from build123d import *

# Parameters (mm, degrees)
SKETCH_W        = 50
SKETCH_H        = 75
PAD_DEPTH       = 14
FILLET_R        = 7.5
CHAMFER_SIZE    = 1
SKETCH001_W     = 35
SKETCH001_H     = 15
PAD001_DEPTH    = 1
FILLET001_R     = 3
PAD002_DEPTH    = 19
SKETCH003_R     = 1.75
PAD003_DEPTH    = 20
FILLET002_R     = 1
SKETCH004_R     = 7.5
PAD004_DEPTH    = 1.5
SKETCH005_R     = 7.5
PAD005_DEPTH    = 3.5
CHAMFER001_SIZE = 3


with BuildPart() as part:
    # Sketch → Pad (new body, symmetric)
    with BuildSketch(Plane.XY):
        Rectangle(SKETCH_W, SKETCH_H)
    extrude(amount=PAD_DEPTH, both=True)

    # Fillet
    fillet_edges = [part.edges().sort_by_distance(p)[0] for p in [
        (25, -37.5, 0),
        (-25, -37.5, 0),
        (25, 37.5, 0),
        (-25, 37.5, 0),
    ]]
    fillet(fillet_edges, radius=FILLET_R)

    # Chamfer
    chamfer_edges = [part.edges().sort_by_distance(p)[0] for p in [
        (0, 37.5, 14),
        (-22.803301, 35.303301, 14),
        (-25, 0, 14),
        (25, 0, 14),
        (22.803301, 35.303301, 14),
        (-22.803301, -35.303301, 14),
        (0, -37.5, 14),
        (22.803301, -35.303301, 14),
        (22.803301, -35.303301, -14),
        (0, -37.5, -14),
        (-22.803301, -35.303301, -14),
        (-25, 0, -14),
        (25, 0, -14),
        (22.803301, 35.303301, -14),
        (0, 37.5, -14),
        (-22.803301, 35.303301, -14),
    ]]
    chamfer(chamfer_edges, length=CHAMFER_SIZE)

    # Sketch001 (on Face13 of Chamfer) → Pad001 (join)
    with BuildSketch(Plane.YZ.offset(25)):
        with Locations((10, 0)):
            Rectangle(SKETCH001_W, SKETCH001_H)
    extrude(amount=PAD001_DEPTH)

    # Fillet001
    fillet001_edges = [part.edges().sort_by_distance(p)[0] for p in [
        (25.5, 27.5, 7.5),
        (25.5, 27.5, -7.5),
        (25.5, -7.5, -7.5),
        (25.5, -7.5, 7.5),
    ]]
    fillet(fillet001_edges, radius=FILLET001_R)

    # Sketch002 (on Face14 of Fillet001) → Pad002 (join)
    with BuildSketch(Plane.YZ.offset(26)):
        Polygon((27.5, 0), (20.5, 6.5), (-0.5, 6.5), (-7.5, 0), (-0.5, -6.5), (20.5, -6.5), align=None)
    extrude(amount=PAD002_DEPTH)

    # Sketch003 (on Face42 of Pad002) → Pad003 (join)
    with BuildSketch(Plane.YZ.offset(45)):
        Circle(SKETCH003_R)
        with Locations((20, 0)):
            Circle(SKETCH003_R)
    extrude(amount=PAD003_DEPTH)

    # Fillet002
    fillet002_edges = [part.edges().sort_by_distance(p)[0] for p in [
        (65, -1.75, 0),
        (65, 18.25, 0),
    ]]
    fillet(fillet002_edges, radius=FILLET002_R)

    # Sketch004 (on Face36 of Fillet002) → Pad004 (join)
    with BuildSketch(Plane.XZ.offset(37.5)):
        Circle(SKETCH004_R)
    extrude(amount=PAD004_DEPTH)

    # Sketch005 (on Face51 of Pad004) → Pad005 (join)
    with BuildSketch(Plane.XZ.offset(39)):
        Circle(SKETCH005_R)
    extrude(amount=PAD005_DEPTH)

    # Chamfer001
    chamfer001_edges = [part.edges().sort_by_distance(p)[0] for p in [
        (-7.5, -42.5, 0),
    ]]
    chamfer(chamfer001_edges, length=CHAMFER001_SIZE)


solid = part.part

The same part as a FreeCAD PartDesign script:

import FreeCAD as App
import Part
import Sketcher
from FreeCAD import Vector


def edges_at(feature, points):
    """Names of the edges that pass closest to the given points."""
    edges = feature.Shape.Edges
    near = lambda p: min(range(len(edges)), key=lambda i: edges[i].distToShape(Part.Vertex(*p))[0])
    return sorted({f"Edge{near(p) + 1}" for p in points})

doc = App.newDocument("Part")
params = doc.addObject("Spreadsheet::Sheet", "Params")
for row, (alias, value) in enumerate([
    ("sketch1_width", "50 mm"),
    ("sketch1_height", "75 mm"),
    ("pad1_length", "28 mm"),
    ("fillet_radius", "7.5 mm"),
    ("chamfer_size", "1 mm"),
    ("sketch2_width", "35 mm"),
    ("sketch2_height", "15 mm"),
    ("pad2_length", "1 mm"),
    ("fillet2_radius", "3 mm"),
    ("sketch3_width", "21 mm"),
    ("pad3_length", "19 mm"),
    ("sketch4_diameter", "3.5 mm"),
    ("pad4_length", "20 mm"),
    ("fillet3_radius", "1 mm"),
    ("sketch5_diameter", "15 mm"),
    ("pad5_length", "1.5 mm"),
    ("sketch6_diameter", "15 mm"),
    ("pad6_length", "3.5 mm"),
    ("chamfer2_size", "3 mm"),
], start=1):
    params.set(f"A{row}", alias)
    params.set(f"B{row}", "=" + value)
    params.setAlias(f"B{row}", alias)

body = doc.addObject("PartDesign::Body", "Body")

sketch1 = body.newObject("Sketcher::SketchObject", "Sketch")
sketch1.AttachmentSupport = (doc.getObject("XY_Plane"), [""])
sketch1.MapMode = "FlatFace"
sketch1.addGeometry([
    Part.LineSegment(Vector(-25, 38, 0), Vector(-25, -38, 0)),
    Part.LineSegment(Vector(-25, -38, 0), Vector(25, -38, 0)),
    Part.LineSegment(Vector(25, -38, 0), Vector(25, 38, 0)),
    Part.LineSegment(Vector(25, 38, 0), Vector(-25, 38, 0)),
], False)
sketch1.addConstraint([
    Sketcher.Constraint("Coincident", 0, 2, 1, 1),
    Sketcher.Constraint("Coincident", 1, 2, 2, 1),
    Sketcher.Constraint("Coincident", 2, 2, 3, 1),
    Sketcher.Constraint("Coincident", 3, 2, 0, 1),
    Sketcher.Constraint("Vertical", 0),
    Sketcher.Constraint("Horizontal", 1),
    Sketcher.Constraint("Vertical", 2),
    Sketcher.Constraint("Horizontal", 3),
    Sketcher.Constraint("Symmetric", 0, 2, 2, 2, -1, 1),
    Sketcher.Constraint("DistanceX", 1, 1, 1, 2, 50.0),
    Sketcher.Constraint("DistanceY", 0, 2, 0, 1, 75.0),
])
sketch1.setExpression("Constraints[9]", "Params.sketch1_width")
sketch1.setExpression("Constraints[10]", "Params.sketch1_height")
pad1 = body.newObject("PartDesign::Pad", "Pad")
pad1.Profile = sketch1
pad1.setExpression("Length", "Params.pad1_length")
pad1.Midplane = True
doc.recompute()

fillet = body.newObject("PartDesign::Fillet", "Fillet")
fillet.Base = (pad1, edges_at(pad1, [
    (25, -37.5, 0),
    (-25, -37.5, 0),
    (25, 37.5, 0),
    (-25, 37.5, 0),
]))
fillet.setExpression("Radius", "Params.fillet_radius")
doc.recompute()

chamfer = body.newObject("PartDesign::Chamfer", "Chamfer")
chamfer.Base = (fillet, edges_at(fillet, [
    (0, 37.5, 14),
    (-22.803, 35.303, 14),
    (-25, 0, 14),
    (25, 0, 14),
    (22.803, 35.303, 14),
    (-22.803, -35.303, 14),
    (0, -37.5, 14),
    (22.803, -35.303, 14),
    (22.803, -35.303, -14),
    (0, -37.5, -14),
    (-22.803, -35.303, -14),
    (-25, 0, -14),
    (25, 0, -14),
    (22.803, 35.303, -14),
    (0, 37.5, -14),
    (-22.803, 35.303, -14),
]))
chamfer.setExpression("Size", "Params.chamfer_size")

sketch2 = body.newObject("Sketcher::SketchObject", "Sketch001")
sketch2.AttachmentSupport = (doc.getObject("YZ_Plane"), [""])
sketch2.MapMode = "FlatFace"
sketch2.AttachmentOffset = App.Placement(Vector(0, 0, 25), App.Rotation())
sketch2.addGeometry([
    Part.LineSegment(Vector(-8, 8, 0), Vector(-8, -8, 0)),
    Part.LineSegment(Vector(-8, -8, 0), Vector(28, -8, 0)),
    Part.LineSegment(Vector(28, -8, 0), Vector(28, 8, 0)),
    Part.LineSegment(Vector(28, 8, 0), Vector(-8, 8, 0)),
], False)
sketch2.addConstraint([
    Sketcher.Constraint("Coincident", 0, 2, 1, 1),
    Sketcher.Constraint("Coincident", 1, 2, 2, 1),
    Sketcher.Constraint("Coincident", 2, 2, 3, 1),
    Sketcher.Constraint("Coincident", 3, 2, 0, 1),
    Sketcher.Constraint("Vertical", 0),
    Sketcher.Constraint("Horizontal", 1),
    Sketcher.Constraint("Vertical", 2),
    Sketcher.Constraint("Horizontal", 3),
    Sketcher.Constraint("DistanceX", 1, 1, 1, 2, 35.0),
    Sketcher.Constraint("DistanceY", 0, 2, 0, 1, 15.0),
    Sketcher.Constraint("DistanceX", 0, 2, -1, 1, 7.5),
    Sketcher.Constraint("DistanceY", 0, 2, -1, 1, 7.5),
])
sketch2.setExpression("Constraints[8]", "Params.sketch2_width")
sketch2.setExpression("Constraints[9]", "Params.sketch2_height")
pad2 = body.newObject("PartDesign::Pad", "Pad001")
pad2.Profile = sketch2
pad2.setExpression("Length", "Params.pad2_length")
doc.recompute()

fillet2 = body.newObject("PartDesign::Fillet", "Fillet001")
fillet2.Base = (pad2, edges_at(pad2, [
    (25.5, 27.5, 7.5),
    (25.5, 27.5, -7.5),
    (25.5, -7.5, -7.5),
    (25.5, -7.5, 7.5),
]))
fillet2.setExpression("Radius", "Params.fillet2_radius")

sketch3 = body.newObject("Sketcher::SketchObject", "Sketch002")
sketch3.AttachmentSupport = (doc.getObject("YZ_Plane"), [""])
sketch3.MapMode = "FlatFace"
sketch3.AttachmentOffset = App.Placement(Vector(0, 0, 26), App.Rotation())
sketch3.addGeometry([
    Part.LineSegment(Vector(28, 0, 0), Vector(20, 6, 0)),
    Part.LineSegment(Vector(20, 6, 0), Vector(0, 6, 0)),
    Part.LineSegment(Vector(0, 6, 0), Vector(-8, 0, 0)),
    Part.LineSegment(Vector(-8, 0, 0), Vector(0, -6, 0)),
    Part.LineSegment(Vector(0, -6, 0), Vector(20, -6, 0)),
    Part.LineSegment(Vector(20, -6, 0), Vector(28, 0, 0)),
], False)
sketch3.addConstraint([
    Sketcher.Constraint("Coincident", 0, 2, 1, 1),
    Sketcher.Constraint("Coincident", 1, 2, 2, 1),
    Sketcher.Constraint("Coincident", 2, 2, 3, 1),
    Sketcher.Constraint("Coincident", 3, 2, 4, 1),
    Sketcher.Constraint("Coincident", 4, 2, 5, 1),
    Sketcher.Constraint("Coincident", 5, 2, 0, 1),
    Sketcher.Constraint("Horizontal", 1),
    Sketcher.Constraint("Horizontal", 4),
    Sketcher.Constraint("Symmetric", 1, 2, 3, 2, -1),
    Sketcher.Constraint("PointOnObject", 2, 2, -1),
    Sketcher.Constraint("PointOnObject", 5, 2, -1),
    Sketcher.Constraint("Parallel", 0, 3),
    Sketcher.Constraint("Parallel", 2, 5),
    Sketcher.Constraint("DistanceX", 1, 2, 1, 1, 21.0),
    Sketcher.Constraint("DistanceX", 2, 2, 1, 2, 7.0),
    Sketcher.Constraint("DistanceY", 3, 2, 1, 2, 13.0),
    Sketcher.Constraint("DistanceX", -1, 1, 0, 2, 20.5),
])
sketch3.setExpression("Constraints[13]", "Params.sketch3_width")
pad3 = body.newObject("PartDesign::Pad", "Pad002")
pad3.Profile = sketch3
pad3.setExpression("Length", "Params.pad3_length")

sketch4 = body.newObject("Sketcher::SketchObject", "Sketch003")
sketch4.AttachmentSupport = (doc.getObject("YZ_Plane"), [""])
sketch4.MapMode = "FlatFace"
sketch4.AttachmentOffset = App.Placement(Vector(0, 0, 45), App.Rotation())
sketch4.addGeometry([
    Part.Circle(Vector(0, 0, 0), Vector(0, 0, 1), 1.8),
    Part.Circle(Vector(20, 0, 0), Vector(0, 0, 1), 1.8),
], False)
sketch4.addConstraint([
    Sketcher.Constraint("Coincident", 0, 3, -1, 1),
    Sketcher.Constraint("Equal", 0, 1),
    Sketcher.Constraint("PointOnObject", 1, 3, -1),
    Sketcher.Constraint("Diameter", 0, 3.5),
    Sketcher.Constraint("DistanceX", -1, 1, 1, 3, 20.0),
])
sketch4.setExpression("Constraints[3]", "Params.sketch4_diameter")
pad4 = body.newObject("PartDesign::Pad", "Pad003")
pad4.Profile = sketch4
pad4.setExpression("Length", "Params.pad4_length")
doc.recompute()

fillet3 = body.newObject("PartDesign::Fillet", "Fillet002")
fillet3.Base = (pad4, edges_at(pad4, [(65, -1.75, 0), (65, 18.25, 0)]))
fillet3.setExpression("Radius", "Params.fillet3_radius")

sketch5 = body.newObject("Sketcher::SketchObject", "Sketch004")
sketch5.AttachmentSupport = (doc.getObject("XZ_Plane"), [""])
sketch5.MapMode = "FlatFace"
sketch5.AttachmentOffset = App.Placement(Vector(0, 0, 37.5), App.Rotation())
sketch5.addGeometry(Part.Circle(Vector(0, 0, 0), Vector(0, 0, 1), 8), False)
sketch5.addConstraint([
    Sketcher.Constraint("Coincident", 0, 3, -1, 1),
    Sketcher.Constraint("Diameter", 0, 15.0),
])
sketch5.setExpression("Constraints[1]", "Params.sketch5_diameter")
pad5 = body.newObject("PartDesign::Pad", "Pad004")
pad5.Profile = sketch5
pad5.setExpression("Length", "Params.pad5_length")

sketch6 = body.newObject("Sketcher::SketchObject", "Sketch005")
sketch6.AttachmentSupport = (doc.getObject("XZ_Plane"), [""])
sketch6.MapMode = "FlatFace"
sketch6.AttachmentOffset = App.Placement(Vector(0, 0, 39), App.Rotation())
sketch6.addGeometry(Part.Circle(Vector(0, 0, 0), Vector(0, 0, 1), 8), False)
sketch6.addConstraint([
    Sketcher.Constraint("Coincident", 0, 3, -1, 1),
    Sketcher.Constraint("Diameter", 0, 15.0),
])
sketch6.setExpression("Constraints[1]", "Params.sketch6_diameter")
pad6 = body.newObject("PartDesign::Pad", "Pad005")
pad6.Profile = sketch6
pad6.setExpression("Length", "Params.pad6_length")
doc.recompute()

chamfer2 = body.newObject("PartDesign::Chamfer", "Chamfer001")
chamfer2.Base = (pad6, edges_at(pad6, [(-7.5, -42.5, 0)]))
chamfer2.setExpression("Size", "Params.chamfer2_size")

doc.recompute()
